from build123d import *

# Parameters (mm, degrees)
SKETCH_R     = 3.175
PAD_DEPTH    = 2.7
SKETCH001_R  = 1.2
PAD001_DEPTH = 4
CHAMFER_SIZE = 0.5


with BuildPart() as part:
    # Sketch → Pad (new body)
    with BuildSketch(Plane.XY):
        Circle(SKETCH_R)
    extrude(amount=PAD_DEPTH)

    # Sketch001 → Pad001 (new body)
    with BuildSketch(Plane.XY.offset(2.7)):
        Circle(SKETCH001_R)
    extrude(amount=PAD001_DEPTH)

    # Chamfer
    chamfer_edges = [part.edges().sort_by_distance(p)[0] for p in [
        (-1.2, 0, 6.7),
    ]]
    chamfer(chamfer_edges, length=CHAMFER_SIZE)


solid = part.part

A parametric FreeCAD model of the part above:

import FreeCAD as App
import Part
import Sketcher
from FreeCAD import Vector


def edges_at(feature, points):
    """Names of the edges that pass closest to the given points."""
    edges = feature.Shape.Edges
    near = lambda p: min(range(len(edges)), key=lambda i: edges[i].distToShape(Part.Vertex(*p))[0])
    return sorted({f"Edge{near(p) + 1}" for p in points})

doc = App.newDocument("Part")
body = doc.addObject("PartDesign::Body", "Body")

# Sketch on XY plane
sketch1 = body.newObject("Sketcher::SketchObject", "Sketch")
sketch1.AttachmentSupport = (doc.getObject("XY_Plane"), [""])
sketch1.MapMode = "FlatFace"
sketch1.addGeometry(Part.Circle(Vector(0, 0, 0), Vector(0, 0, 1), 3.2), False)
sketch1.addConstraint([
    Sketcher.Constraint("Coincident", 0, 3, -1, 1),
    Sketcher.Constraint("Diameter", 0, 6.35),
])
pad1 = body.newObject("PartDesign::Pad", "Pad")
pad1.Profile = sketch1
pad1.Length = 2.7

# Sketch on XY plane
sketch2 = body.newObject("Sketcher::SketchObject", "Sketch001")
sketch2.AttachmentSupport = (doc.getObject("XY_Plane"), [""])
sketch2.MapMode = "FlatFace"
sketch2.AttachmentOffset = App.Placement(Vector(0, 0, 2.7), App.Rotation())
sketch2.addGeometry(Part.Circle(Vector(0, 0, 0), Vector(0, 0, 1), 1.2), False)
sketch2.addConstraint([
    Sketcher.Constraint("Coincident", 0, 3, -1, 1),
    Sketcher.Constraint("Diameter", 0, 2.4),
])
pad2 = body.newObject("PartDesign::Pad", "Pad001")
pad2.Profile = sketch2
pad2.Length = 4
doc.recompute()

chamfer = body.newObject("PartDesign::Chamfer", "Chamfer")
chamfer.Base = (pad2, edges_at(pad2, [(-1.2, 0, 6.7)]))
chamfer.Size = 0.5

doc.recompute()
